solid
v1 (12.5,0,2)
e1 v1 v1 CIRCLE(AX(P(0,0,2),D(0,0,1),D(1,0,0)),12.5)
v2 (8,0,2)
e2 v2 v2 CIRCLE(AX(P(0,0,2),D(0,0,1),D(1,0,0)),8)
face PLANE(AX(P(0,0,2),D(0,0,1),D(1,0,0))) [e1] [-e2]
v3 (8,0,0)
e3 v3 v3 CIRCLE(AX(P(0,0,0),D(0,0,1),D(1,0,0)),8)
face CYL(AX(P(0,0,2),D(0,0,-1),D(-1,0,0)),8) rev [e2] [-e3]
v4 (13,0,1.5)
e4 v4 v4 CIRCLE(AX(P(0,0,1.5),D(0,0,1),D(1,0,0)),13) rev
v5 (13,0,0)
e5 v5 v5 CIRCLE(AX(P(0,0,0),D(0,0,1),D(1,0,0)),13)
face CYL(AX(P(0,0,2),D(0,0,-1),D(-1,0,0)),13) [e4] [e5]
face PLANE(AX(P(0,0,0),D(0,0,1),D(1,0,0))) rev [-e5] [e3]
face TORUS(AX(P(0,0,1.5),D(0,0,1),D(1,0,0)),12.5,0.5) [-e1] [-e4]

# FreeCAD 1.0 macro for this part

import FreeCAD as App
import Part
import Sketcher
Q = App.Units.Quantity


def edges_at(feature, points):
    """Names of the edges that pass closest to the given points."""
    edges = feature.Shape.Edges
    near = lambda p: min(range(len(edges)), key=lambda i: edges[i].distToShape(Part.Vertex(*p))[0])
    return sorted({f"Edge{near(p) + 1}" for p in points})

doc = App.newDocument("Part")
body = doc.addObject("PartDesign::Body", "Body")

# Sketch on XY plane
sketch1 = doc.addObject("Sketcher::SketchObject", "Sketch")
body.addObject(sketch1)
sketch1.AttachmentSupport = (doc.XY_Plane, [""])
sketch1.MapMode = "FlatFace"
sketch1.addGeometry([
    Part.Circle(App.Vector(0, 0, 0), App.Vector(0, 0, 1), 13),
    Part.Circle(App.Vector(0, 0, 0), App.Vector(0, 0, 1), 8),
], False)
sketch1.addConstraint([
    Sketcher.Constraint("Coincident", 0, 3, -1, 1),
    Sketcher.Constraint("Coincident", 1, 3, -1, 1),
    Sketcher.Constraint("Diameter", 0, Q("26 mm")),
    Sketcher.Constraint("Diameter", 1, Q("16 mm")),
])
pad1 = doc.addObject("PartDesign::Pad", "Pad")
body.addObject(pad1)
pad1.Profile = sketch1
pad1.Length = 2
doc.recompute()

fillet = doc.addObject("PartDesign::Fillet", "Fillet")
body.addObject(fillet)
fillet.Base = (pad1, edges_at(pad1, [(-13, 0, 2)]))
fillet.Radius = 0.5

doc.recompute()
